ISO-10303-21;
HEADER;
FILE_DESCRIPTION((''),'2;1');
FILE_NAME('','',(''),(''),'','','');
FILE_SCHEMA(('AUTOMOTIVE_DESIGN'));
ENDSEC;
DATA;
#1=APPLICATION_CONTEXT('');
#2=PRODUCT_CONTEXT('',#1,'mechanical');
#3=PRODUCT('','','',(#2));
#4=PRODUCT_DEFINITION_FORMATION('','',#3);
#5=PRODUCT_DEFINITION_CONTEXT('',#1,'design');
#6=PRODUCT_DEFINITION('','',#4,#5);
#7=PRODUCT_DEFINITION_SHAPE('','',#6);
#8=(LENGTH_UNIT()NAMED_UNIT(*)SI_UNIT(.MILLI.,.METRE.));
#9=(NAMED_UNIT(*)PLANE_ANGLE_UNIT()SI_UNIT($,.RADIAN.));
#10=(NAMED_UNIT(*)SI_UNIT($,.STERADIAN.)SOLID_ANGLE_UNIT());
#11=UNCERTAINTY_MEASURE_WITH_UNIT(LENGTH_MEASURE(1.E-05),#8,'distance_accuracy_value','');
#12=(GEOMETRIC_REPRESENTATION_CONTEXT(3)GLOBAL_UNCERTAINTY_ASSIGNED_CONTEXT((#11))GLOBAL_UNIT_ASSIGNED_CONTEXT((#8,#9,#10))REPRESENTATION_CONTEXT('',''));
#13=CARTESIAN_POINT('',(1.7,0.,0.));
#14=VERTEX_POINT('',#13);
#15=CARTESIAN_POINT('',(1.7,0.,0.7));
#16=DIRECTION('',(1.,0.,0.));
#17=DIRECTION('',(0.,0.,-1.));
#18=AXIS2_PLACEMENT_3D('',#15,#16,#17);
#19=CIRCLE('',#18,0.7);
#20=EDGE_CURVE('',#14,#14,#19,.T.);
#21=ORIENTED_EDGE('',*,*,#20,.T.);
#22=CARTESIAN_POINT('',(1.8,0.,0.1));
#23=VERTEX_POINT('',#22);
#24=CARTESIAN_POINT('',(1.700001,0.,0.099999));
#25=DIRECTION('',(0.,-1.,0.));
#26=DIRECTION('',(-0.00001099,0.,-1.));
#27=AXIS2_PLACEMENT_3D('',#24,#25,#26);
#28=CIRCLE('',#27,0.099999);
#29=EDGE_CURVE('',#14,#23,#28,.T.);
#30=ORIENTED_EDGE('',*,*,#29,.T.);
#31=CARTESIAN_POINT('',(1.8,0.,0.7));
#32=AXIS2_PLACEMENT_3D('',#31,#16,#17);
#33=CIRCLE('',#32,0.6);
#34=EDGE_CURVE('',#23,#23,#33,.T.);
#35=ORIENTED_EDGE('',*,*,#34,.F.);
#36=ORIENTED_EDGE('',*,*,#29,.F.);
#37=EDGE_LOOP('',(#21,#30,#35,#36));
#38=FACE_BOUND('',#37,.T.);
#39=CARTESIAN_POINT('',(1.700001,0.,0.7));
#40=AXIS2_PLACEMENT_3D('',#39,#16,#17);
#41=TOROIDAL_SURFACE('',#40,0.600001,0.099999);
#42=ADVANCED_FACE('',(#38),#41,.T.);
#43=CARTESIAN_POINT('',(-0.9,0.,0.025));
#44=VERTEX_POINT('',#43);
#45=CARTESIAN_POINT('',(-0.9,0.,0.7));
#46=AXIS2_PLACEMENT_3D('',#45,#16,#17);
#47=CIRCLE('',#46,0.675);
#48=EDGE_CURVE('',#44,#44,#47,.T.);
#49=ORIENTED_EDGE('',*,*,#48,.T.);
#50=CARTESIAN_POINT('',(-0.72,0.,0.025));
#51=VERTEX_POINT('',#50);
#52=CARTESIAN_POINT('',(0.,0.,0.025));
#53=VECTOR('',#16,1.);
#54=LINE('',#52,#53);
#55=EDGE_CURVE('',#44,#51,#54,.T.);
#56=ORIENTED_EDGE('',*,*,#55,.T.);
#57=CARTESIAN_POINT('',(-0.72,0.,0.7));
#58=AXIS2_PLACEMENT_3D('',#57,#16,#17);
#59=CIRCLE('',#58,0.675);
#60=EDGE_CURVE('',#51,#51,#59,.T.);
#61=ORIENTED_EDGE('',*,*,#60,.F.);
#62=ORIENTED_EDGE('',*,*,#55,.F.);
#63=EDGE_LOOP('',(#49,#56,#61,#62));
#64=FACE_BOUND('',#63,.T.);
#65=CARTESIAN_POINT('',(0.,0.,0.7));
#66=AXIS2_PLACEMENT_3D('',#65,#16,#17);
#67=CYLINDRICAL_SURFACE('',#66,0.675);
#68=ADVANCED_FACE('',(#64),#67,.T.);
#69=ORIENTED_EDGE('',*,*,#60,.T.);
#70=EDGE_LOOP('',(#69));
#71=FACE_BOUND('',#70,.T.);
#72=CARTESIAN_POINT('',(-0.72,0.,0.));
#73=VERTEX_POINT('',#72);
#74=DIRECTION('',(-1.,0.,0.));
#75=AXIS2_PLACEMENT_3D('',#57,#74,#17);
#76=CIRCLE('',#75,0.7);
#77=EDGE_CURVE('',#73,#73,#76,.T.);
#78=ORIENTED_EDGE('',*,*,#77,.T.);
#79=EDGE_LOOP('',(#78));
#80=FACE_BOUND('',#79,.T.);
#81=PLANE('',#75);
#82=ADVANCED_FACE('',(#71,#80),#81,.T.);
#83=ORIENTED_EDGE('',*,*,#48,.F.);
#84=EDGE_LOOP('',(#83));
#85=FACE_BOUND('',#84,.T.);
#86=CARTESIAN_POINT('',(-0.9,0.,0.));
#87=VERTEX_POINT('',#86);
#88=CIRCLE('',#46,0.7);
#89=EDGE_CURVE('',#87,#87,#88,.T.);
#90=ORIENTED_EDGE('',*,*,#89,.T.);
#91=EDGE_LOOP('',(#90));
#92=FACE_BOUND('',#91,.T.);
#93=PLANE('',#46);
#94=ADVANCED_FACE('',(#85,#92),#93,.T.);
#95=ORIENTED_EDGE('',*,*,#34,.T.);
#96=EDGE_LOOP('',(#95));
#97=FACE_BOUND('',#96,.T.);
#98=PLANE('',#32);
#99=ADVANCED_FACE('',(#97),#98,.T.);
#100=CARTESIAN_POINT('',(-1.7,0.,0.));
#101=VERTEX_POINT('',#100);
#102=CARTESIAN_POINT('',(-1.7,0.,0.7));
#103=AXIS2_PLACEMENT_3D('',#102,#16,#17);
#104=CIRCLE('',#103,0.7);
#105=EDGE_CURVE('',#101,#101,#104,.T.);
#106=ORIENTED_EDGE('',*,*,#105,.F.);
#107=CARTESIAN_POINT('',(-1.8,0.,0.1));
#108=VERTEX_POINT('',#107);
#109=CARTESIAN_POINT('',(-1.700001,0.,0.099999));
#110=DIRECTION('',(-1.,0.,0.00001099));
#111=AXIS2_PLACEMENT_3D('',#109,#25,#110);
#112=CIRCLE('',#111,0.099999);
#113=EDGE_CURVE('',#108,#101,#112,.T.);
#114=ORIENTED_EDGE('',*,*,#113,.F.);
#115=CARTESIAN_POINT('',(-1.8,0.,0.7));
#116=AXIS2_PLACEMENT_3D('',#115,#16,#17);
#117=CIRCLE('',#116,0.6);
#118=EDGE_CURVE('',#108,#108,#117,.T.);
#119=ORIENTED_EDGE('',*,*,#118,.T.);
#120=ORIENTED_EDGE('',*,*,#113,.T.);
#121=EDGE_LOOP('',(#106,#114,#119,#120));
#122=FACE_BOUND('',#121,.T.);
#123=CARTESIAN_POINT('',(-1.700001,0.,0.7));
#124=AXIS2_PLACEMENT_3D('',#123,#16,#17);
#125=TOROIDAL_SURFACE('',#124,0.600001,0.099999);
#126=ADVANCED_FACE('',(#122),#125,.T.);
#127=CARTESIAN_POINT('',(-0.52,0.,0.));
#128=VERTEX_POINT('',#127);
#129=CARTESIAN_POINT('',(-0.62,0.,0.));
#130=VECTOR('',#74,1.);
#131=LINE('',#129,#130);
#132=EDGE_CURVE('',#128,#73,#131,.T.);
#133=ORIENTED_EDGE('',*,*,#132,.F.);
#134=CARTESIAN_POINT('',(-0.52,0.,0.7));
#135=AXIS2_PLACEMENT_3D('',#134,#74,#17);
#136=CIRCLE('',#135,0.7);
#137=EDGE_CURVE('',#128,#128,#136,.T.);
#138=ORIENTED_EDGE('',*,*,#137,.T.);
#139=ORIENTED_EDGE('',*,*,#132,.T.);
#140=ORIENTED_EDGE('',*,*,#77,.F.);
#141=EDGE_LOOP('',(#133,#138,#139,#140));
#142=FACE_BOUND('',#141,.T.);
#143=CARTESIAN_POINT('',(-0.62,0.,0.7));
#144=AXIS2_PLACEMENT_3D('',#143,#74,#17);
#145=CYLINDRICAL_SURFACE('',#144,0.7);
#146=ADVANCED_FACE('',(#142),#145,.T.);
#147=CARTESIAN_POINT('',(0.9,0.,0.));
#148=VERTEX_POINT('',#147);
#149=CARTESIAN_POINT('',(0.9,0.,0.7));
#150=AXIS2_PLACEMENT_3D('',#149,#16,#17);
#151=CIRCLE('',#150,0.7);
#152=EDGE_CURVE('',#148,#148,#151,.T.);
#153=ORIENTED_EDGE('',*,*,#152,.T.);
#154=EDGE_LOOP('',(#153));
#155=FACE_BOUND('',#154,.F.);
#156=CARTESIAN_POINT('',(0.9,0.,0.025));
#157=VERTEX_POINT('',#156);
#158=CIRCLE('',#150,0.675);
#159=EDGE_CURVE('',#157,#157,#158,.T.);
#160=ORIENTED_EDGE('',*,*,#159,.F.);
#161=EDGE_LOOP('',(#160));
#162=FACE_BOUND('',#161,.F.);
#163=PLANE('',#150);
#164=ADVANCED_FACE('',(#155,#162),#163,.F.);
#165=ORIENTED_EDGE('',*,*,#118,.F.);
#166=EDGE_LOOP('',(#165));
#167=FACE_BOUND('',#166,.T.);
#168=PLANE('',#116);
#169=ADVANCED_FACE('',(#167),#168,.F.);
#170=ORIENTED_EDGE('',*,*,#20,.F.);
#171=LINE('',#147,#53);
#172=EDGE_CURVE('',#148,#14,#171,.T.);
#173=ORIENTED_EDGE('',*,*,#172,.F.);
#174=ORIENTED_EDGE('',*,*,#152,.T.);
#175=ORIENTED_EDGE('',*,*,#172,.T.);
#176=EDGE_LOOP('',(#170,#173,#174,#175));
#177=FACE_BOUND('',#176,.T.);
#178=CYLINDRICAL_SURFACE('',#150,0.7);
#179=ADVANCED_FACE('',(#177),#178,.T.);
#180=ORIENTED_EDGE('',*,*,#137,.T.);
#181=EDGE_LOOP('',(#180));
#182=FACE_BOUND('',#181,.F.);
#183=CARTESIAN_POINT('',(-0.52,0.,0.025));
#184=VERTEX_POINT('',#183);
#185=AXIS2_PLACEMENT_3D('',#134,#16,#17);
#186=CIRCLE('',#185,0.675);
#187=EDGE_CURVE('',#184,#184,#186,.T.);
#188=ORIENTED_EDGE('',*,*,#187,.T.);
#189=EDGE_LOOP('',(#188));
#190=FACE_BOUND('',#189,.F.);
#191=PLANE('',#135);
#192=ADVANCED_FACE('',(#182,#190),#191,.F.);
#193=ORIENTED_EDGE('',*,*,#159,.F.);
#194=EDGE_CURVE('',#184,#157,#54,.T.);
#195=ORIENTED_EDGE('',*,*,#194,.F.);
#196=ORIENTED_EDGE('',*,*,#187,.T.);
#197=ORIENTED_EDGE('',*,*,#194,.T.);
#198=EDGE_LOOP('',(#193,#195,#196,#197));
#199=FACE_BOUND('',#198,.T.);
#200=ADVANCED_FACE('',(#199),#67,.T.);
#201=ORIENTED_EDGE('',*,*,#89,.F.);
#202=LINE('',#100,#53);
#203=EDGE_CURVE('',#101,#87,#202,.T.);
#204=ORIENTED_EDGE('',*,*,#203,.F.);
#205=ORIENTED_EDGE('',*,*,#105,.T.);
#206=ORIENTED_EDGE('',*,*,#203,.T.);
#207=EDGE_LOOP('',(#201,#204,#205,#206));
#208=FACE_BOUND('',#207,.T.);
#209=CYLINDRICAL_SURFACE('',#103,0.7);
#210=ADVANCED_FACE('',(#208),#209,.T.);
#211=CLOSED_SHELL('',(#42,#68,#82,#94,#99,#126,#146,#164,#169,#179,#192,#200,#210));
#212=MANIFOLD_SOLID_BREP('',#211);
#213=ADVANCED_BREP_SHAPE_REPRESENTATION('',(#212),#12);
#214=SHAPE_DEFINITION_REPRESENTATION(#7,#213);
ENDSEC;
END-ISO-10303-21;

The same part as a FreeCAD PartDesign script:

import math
import FreeCAD as App
import Part
import Sketcher
Q = App.Units.Quantity

doc = App.newDocument("Part")
body = doc.addObject("PartDesign::Body", "Body")

sketch1 = body.newObject("Sketcher::SketchObject", "Sketch")
sketch1.AttachmentSupport = (doc.getObject("XZ_Plane"), [""])
sketch1.MapMode = "FlatFace"
sketch1.addGeometry([
    Part.LineSegment(App.Vector(-0.52, 0.05, 0), App.Vector(-0.52, 0, 0)),
    Part.LineSegment(App.Vector(-0.52, 0, 0), App.Vector(-0.72, 0, 0)),
    Part.LineSegment(App.Vector(-0.72, 0, 0), App.Vector(-0.72, 0.05, 0)),
    Part.LineSegment(App.Vector(-0.72, 0.05, 0), App.Vector(-0.52, 0.05, 0)),
], False)
sketch1.addGeometry(Part.LineSegment(App.Vector(-0.52, 0.7, 0), App.Vector(-0.72, 0.7, 0)), True)
sketch1.addConstraint([
    Sketcher.Constraint("Coincident", 0, 2, 1, 1),
    Sketcher.Constraint("Coincident", 1, 2, 2, 1),
    Sketcher.Constraint("Coincident", 2, 2, 3, 1),
    Sketcher.Constraint("Coincident", 3, 2, 0, 1),
    Sketcher.Constraint("Vertical", 0),
    Sketcher.Constraint("Horizontal", 1),
    Sketcher.Constraint("Vertical", 2),
    Sketcher.Constraint("Horizontal", 3),
    Sketcher.Constraint("Horizontal", 4),
    Sketcher.Constraint("PointOnObject", 0, 2, -1),
    Sketcher.Constraint("Vertical", 3, 2, 4, 1),
    Sketcher.Constraint("Vertical", 2, 2, 4, 2),
    Sketcher.Constraint("DistanceX", 1, 2, 1, 1, Q("0.2 mm")),
    Sketcher.Constraint("DistanceY", 0, 2, 0, 1, Q("0.05 mm")),
    Sketcher.Constraint("DistanceY", -1, 1, 4, 1, Q("0.7 mm")),
    Sketcher.Constraint("DistanceX", 0, 2, -1, 1, Q("0.52 mm")),
])
revolution = body.newObject("PartDesign::Revolution", "Revolution")
revolution.Profile = sketch1
revolution.ReferenceAxis = (sketch1, ["Axis0"])
revolution.Angle = 360
body2 = doc.addObject("PartDesign::Body", "Body001")

sketch2 = body2.newObject("Sketcher::SketchObject", "Sketch001")
sketch2.AttachmentSupport = (doc.getObject("XZ_Plane001"), [""])
sketch2.MapMode = "FlatFace"
sketch2.addGeometry([
    Part.LineSegment(App.Vector(-1.7, 0, 0), App.Vector(-0.9, 0, 0)),
    Part.LineSegment(App.Vector(-0.9, 0, 0), App.Vector(-0.9, 0.19, 0)),
    Part.LineSegment(App.Vector(-0.9, 0.19, 0), App.Vector(0.9, 0.19, 0)),
    Part.LineSegment(App.Vector(0.9, 0.19, 0), App.Vector(0.9, 0, 0)),
    Part.LineSegment(App.Vector(0.9, 0, 0), App.Vector(1.7, 0, 0)),
    Part.ArcOfCircle(Part.Circle(App.Vector(1.7, 0.1, 0), App.Vector(0, 0, 1), 0.1), math.radians(-90), math.radians(0)),
    Part.LineSegment(App.Vector(1.8, 0.1, 0), App.Vector(1.8, 0.7, 0)),
    Part.LineSegment(App.Vector(1.8, 0.7, 0), App.Vector(-1.8, 0.7, 0)),
    Part.LineSegment(App.Vector(-1.8, 0.7, 0), App.Vector(-1.8, 0.1, 0)),
    Part.ArcOfCircle(Part.Circle(App.Vector(-1.7, 0.1, 0), App.Vector(0, 0, 1), 0.1), math.radians(180), math.radians(270)),
], False)
sketch2.addGeometry(Part.LineSegment(App.Vector(-1.8, 0.7, 0), App.Vector(1.8, 0.7, 0)), True)
sketch2.addConstraint([
    Sketcher.Constraint("Coincident", 0, 2, 1, 1),
    Sketcher.Constraint("Coincident", 1, 2, 2, 1),
    Sketcher.Constraint("Coincident", 2, 2, 3, 1),
    Sketcher.Constraint("Coincident", 3, 2, 4, 1),
    Sketcher.Constraint("Coincident", 4, 2, 5, 1),
    Sketcher.Constraint("Coincident", 5, 2, 6, 1),
    Sketcher.Constraint("Coincident", 6, 2, 7, 1),
    Sketcher.Constraint("Coincident", 7, 2, 8, 1),
    Sketcher.Constraint("Coincident", 8, 2, 9, 1),
    Sketcher.Constraint("Coincident", 9, 2, 0, 1),
    Sketcher.Constraint("Horizontal", 0),
    Sketcher.Constraint("Vertical", 1),
    Sketcher.Constraint("Horizontal", 2),
    Sketcher.Constraint("Vertical", 3),
    Sketcher.Constraint("Horizontal", 4),
    Sketcher.Constraint("Vertical", 6),
    Sketcher.Constraint("Horizontal", 7),
    Sketcher.Constraint("Vertical", 8),
    Sketcher.Constraint("Horizontal", 10),
    Sketcher.Constraint("Coincident", 10, 1, 7, 2),
    Sketcher.Constraint("Equal", 5, 9),
    Sketcher.Constraint("Symmetric", 0, 2, 3, 2, -1, 1),
    Sketcher.Constraint("Symmetric", 5, 3, 9, 3, -2),
    Sketcher.Constraint("Horizontal", 9, 3, 5, 2),
    Sketcher.Constraint("Horizontal", 5, 2, 8, 2),
    Sketcher.Constraint("Vertical", 5, 3, 4, 2),
    Sketcher.Constraint("Vertical", 5, 2, 10, 2),
    Sketcher.Constraint("Equal", 0, 4),
    Sketcher.Constraint("Radius", 5, Q("0.099999 mm")),
    Sketcher.Constraint("DistanceX", 0, 1, 0, 2, Q("0.8 mm")),
    Sketcher.Constraint("DistanceX", 2, 1, 2, 2, Q("1.8 mm")),
    Sketcher.Constraint("DistanceY", 6, 1, 6, 2, Q("0.6 mm")),
    Sketcher.Constraint("DistanceY", 1, 1, 1, 2, Q("0.19375 mm")),
])
revolution2 = body2.newObject("PartDesign::Revolution", "Revolution001")
revolution2.Profile = sketch2
revolution2.ReferenceAxis = (sketch2, ["Axis0"])
revolution2.Angle = 360
body3 = doc.addObject("PartDesign::Body", "Body002")

sketch3 = body3.newObject("Sketcher::SketchObject", "Sketch002")
sketch3.AttachmentSupport = (doc.getObject("XZ_Plane002"), [""])
sketch3.MapMode = "FlatFace"
sketch3.addGeometry([
    Part.LineSegment(App.Vector(-1.4, 0.7, 0), App.Vector(-1.4, 0, 0)),
    Part.LineSegment(App.Vector(-1.4, 0, 0), App.Vector(1.4, 0, 0)),
    Part.LineSegment(App.Vector(1.4, 0, 0), App.Vector(1.4, 0.7, 0)),
    Part.LineSegment(App.Vector(1.4, 0.7, 0), App.Vector(-1.4, 0.7, 0)),
], False)
sketch3.addGeometry(Part.LineSegment(App.Vector(-1.4, 0.7, 0), App.Vector(1.4, 0.7, 0)), True)
sketch3.addConstraint([
    Sketcher.Constraint("Coincident", 0, 2, 1, 1),
    Sketcher.Constraint("Coincident", 1, 2, 2, 1),
    Sketcher.Constraint("Coincident", 2, 2, 3, 1),
    Sketcher.Constraint("Coincident", 3, 2, 0, 1),
    Sketcher.Constraint("Vertical", 0),
    Sketcher.Constraint("Horizontal", 1),
    Sketcher.Constraint("Vertical", 2),
    Sketcher.Constraint("Horizontal", 3),
    Sketcher.Constraint("Horizontal", 4),
    Sketcher.Constraint("Coincident", 4, 1, 3, 2),
    Sketcher.Constraint("Vertical", 1, 2, 4, 2),
    Sketcher.Constraint("DistanceX", 1, 1, 1, 2, Q("2.7 mm")),
    Sketcher.Constraint("DistanceY", -1, 1, 2, 2, Q("0.7 mm")),
    Sketcher.Constraint("DistanceY", 0, 2, 0, 1, Q("0.675 mm")),
    Sketcher.Constraint("DistanceX", 0, 2, -1, 1, Q("1.35 mm")),
])
revolution3 = body3.newObject("PartDesign::Revolution", "Revolution002")
revolution3.Profile = sketch3
revolution3.ReferenceAxis = (sketch3, ["Axis0"])
revolution3.Angle = 360
doc.recompute()

boolean = body3.newObject("PartDesign::Boolean", "Boolean")
boolean.Type = "Fuse"
boolean.addObjects([body])
doc.recompute()

boolean2 = body3.newObject("PartDesign::Boolean", "Boolean001")
boolean2.Type = "Fuse"
boolean2.addObjects([body2])

doc.recompute()
